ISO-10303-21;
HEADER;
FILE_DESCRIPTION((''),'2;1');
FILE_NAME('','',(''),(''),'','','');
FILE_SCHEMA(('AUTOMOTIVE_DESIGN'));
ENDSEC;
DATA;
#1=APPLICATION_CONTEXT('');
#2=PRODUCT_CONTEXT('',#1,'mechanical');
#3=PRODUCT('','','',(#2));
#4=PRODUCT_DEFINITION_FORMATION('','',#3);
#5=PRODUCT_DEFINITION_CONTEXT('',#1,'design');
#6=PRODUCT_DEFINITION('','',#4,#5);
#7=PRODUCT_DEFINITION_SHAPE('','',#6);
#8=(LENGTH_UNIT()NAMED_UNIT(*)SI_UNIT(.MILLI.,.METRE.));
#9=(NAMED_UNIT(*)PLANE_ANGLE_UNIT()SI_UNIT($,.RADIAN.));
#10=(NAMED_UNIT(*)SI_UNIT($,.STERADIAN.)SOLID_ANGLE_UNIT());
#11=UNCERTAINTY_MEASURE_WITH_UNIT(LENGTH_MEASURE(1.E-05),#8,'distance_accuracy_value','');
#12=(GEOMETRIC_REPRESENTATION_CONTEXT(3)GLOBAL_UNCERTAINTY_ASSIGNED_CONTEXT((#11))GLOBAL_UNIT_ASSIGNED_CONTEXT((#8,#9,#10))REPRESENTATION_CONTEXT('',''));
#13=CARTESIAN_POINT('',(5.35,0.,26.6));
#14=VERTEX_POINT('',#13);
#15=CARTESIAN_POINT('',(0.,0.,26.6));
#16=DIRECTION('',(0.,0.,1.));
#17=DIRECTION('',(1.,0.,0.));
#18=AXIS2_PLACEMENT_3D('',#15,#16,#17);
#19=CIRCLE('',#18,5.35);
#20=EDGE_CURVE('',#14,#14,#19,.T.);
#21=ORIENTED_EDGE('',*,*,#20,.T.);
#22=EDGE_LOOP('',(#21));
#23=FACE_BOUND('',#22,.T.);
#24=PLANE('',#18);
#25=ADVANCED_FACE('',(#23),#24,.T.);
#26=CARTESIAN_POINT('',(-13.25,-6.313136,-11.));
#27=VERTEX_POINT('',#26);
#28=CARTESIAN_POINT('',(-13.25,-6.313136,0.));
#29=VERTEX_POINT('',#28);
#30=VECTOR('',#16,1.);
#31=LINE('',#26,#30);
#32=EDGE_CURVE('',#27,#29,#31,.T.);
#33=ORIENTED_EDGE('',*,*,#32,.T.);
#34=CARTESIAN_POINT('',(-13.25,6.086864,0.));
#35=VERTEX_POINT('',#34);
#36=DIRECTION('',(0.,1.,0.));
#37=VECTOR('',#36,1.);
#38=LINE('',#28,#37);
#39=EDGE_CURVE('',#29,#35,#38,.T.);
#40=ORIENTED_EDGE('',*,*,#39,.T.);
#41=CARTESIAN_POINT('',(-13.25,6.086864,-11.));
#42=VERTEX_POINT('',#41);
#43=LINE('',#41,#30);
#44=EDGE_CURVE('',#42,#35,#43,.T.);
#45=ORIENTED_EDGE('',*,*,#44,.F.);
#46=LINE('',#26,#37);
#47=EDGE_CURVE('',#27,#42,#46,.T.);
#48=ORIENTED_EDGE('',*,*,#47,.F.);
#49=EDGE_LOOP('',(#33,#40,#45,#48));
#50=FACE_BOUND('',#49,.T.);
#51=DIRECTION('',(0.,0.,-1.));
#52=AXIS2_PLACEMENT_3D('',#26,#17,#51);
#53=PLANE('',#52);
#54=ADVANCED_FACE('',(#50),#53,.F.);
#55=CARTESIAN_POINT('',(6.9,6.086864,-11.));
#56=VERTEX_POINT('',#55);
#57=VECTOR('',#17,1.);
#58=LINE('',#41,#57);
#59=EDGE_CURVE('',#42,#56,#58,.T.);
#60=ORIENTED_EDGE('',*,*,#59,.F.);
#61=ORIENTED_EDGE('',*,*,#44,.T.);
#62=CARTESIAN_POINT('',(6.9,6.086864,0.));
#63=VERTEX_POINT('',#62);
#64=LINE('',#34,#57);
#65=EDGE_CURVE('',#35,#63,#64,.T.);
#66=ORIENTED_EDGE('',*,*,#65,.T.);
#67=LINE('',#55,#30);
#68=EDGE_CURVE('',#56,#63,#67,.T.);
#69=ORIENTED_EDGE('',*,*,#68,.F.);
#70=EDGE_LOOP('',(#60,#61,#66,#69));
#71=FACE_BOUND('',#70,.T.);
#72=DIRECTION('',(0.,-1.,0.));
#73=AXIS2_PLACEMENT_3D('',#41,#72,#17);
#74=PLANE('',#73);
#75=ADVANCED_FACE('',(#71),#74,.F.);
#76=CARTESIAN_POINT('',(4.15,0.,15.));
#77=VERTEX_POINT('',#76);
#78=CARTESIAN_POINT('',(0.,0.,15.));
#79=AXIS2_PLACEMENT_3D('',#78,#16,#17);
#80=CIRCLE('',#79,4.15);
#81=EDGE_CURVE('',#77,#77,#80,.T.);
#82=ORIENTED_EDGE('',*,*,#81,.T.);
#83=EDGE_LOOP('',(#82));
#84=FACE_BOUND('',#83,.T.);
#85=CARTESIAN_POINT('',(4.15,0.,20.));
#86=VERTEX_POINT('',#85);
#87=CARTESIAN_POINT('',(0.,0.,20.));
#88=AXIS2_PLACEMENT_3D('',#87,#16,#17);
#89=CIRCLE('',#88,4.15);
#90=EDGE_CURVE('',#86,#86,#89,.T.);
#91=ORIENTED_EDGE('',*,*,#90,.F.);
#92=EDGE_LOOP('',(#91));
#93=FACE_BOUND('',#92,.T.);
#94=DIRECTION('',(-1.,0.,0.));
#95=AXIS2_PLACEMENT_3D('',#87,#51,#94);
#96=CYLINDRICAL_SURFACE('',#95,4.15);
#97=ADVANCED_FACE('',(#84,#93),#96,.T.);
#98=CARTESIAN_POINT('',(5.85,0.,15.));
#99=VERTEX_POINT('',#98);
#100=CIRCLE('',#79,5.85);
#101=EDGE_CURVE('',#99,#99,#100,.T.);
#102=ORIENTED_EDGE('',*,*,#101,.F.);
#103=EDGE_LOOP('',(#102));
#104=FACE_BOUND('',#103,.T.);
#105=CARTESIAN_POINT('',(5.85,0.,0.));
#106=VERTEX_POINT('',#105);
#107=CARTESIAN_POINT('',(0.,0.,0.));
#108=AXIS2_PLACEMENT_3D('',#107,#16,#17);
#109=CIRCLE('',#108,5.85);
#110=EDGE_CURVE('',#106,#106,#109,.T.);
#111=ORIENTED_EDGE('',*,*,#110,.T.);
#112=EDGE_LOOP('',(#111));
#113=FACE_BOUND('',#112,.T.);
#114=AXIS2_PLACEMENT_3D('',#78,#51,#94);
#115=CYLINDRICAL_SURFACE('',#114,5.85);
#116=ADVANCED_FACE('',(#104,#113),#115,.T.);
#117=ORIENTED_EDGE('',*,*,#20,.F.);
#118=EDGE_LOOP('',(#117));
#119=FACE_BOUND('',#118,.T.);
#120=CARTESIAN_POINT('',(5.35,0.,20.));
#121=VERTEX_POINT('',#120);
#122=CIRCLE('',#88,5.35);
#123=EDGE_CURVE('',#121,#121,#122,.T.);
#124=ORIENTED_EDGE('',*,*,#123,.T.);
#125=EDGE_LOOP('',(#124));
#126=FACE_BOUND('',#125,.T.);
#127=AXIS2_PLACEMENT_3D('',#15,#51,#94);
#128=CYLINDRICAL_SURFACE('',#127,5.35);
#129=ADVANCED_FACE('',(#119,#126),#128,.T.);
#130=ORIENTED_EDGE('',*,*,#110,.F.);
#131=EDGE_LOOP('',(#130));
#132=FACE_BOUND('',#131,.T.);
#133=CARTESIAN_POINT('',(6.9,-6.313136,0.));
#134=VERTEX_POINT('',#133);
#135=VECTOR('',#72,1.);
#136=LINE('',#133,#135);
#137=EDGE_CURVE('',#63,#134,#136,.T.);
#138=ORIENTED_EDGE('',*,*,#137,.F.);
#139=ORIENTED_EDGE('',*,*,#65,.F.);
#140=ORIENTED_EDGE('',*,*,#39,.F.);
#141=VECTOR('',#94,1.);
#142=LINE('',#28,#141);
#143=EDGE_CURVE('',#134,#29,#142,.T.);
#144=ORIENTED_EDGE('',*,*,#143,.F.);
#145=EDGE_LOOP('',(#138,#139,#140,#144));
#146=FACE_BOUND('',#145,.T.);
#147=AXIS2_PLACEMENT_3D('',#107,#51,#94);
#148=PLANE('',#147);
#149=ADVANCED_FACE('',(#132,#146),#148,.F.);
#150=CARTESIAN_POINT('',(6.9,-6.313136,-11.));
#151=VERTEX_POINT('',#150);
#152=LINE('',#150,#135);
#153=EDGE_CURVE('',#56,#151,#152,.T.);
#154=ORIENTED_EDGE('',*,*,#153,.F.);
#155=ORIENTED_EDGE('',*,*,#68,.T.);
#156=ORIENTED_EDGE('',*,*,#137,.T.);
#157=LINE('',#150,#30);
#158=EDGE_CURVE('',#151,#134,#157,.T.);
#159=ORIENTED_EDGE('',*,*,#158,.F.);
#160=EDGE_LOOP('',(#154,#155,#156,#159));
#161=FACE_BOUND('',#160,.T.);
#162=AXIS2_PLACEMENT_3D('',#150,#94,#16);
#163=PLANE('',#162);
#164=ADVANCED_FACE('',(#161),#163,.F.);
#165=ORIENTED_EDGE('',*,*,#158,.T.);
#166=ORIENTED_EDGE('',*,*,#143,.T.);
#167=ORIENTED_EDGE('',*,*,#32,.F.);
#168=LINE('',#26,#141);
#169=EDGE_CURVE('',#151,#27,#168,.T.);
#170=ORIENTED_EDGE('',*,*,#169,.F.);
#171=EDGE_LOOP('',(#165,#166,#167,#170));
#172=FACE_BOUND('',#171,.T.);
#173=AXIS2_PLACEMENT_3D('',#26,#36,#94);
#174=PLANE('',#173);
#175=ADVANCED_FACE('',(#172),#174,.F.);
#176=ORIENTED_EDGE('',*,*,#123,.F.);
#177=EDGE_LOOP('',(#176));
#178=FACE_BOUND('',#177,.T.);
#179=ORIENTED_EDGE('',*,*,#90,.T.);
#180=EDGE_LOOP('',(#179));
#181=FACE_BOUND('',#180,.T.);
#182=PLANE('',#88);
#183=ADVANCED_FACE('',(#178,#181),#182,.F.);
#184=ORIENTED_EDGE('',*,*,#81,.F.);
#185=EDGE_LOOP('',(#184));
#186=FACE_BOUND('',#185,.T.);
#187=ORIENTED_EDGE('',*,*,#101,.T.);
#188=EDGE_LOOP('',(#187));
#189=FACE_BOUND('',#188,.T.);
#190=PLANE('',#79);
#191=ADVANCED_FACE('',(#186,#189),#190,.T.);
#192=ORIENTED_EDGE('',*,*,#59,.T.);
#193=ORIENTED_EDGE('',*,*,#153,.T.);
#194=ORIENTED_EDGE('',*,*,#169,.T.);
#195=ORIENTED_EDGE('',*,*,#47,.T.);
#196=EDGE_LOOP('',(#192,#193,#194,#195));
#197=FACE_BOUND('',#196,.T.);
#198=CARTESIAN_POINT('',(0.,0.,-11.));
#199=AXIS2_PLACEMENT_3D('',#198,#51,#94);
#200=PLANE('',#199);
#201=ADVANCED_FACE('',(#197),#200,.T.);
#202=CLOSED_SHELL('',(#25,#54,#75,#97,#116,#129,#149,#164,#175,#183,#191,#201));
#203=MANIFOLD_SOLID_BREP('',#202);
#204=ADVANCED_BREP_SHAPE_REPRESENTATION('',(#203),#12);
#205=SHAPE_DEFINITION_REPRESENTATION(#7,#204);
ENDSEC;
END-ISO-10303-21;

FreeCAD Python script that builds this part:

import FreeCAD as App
import Part
import Sketcher
from FreeCAD import Vector


def add_polygon(sketch, points):
    """Adds a closed chain of lines whose ends are joined by coincident constraints."""
    first, n = sketch.GeometryCount, len(points)
    for a, b in zip(points, points[1:] + points[:1]):
        sketch.addGeometry(Part.LineSegment(App.Vector(*a, 0), App.Vector(*b, 0)), False)
    for i in range(n):
        sketch.addConstraint(Sketcher.Constraint("Coincident", first + i, 2, first + (i + 1) % n, 1))

doc = App.newDocument("Part")
params = doc.addObject("Spreadsheet::Sheet", "Params")
for row, (alias, value) in enumerate([
    ("sketch1_diameter", "11.7 mm"),
    ("pad1_length", "15 mm"),
    ("sketch2_diameter", "8.3 mm"),
    ("pad2_length", "5 mm"),
    ("sketch3_diameter", "10.7 mm"),
    ("pad3_length", "6.6 mm"),
    ("sketch4_height", "12.4 mm"),
    ("sketch4_width", "20.15 mm"),
    ("pad4_length", "11 mm"),
], start=1):
    params.set(f"A{row}", alias)
    params.set(f"B{row}", "=" + value)
    params.setAlias(f"B{row}", alias)

body = doc.addObject("PartDesign::Body", "Body")

sketch1 = body.newObject("Sketcher::SketchObject", "Sketch")
sketch1.AttachmentSupport = (doc.getObject("XY_Plane"), [""])
sketch1.MapMode = "FlatFace"
sketch1.addGeometry(Part.Circle(Vector(0, 0, 0), Vector(0, 0, 1), 6), False)
sketch1.addConstraint([
    Sketcher.Constraint("Coincident", 0, 3, -1, 1),
    Sketcher.Constraint("Diameter", 0, 11.7),
])
sketch1.setExpression("Constraints[1]", "Params.sketch1_diameter")
pad1 = body.newObject("PartDesign::Pad", "Pad")
pad1.Profile = sketch1
pad1.setExpression("Length", "Params.pad1_length")

sketch2 = body.newObject("Sketcher::SketchObject", "Sketch001")
sketch2.AttachmentSupport = (doc.getObject("XY_Plane"), [""])
sketch2.MapMode = "FlatFace"
sketch2.AttachmentOffset = App.Placement(Vector(0, 0, 15), App.Rotation())
sketch2.addGeometry(Part.Circle(Vector(0, 0, 0), Vector(0, 0, 1), 4.2), False)
sketch2.addConstraint([
    Sketcher.Constraint("Coincident", 0, 3, -1, 1),
    Sketcher.Constraint("Diameter", 0, 8.3),
])
sketch2.setExpression("Constraints[1]", "Params.sketch2_diameter")
pad2 = body.newObject("PartDesign::Pad", "Pad001")
pad2.Profile = sketch2
pad2.setExpression("Length", "Params.pad2_length")

sketch3 = body.newObject("Sketcher::SketchObject", "Sketch002")
sketch3.AttachmentSupport = (doc.getObject("XY_Plane"), [""])
sketch3.MapMode = "FlatFace"
sketch3.AttachmentOffset = App.Placement(Vector(0, 0, 20), App.Rotation())
sketch3.addGeometry(Part.Circle(Vector(0, 0, 0), Vector(0, 0, 1), 5), False)
sketch3.addConstraint([
    Sketcher.Constraint("Coincident", 0, 3, -1, 1),
    Sketcher.Constraint("Diameter", 0, 10.7),
])
sketch3.setExpression("Constraints[1]", "Params.sketch3_diameter")
pad3 = body.newObject("PartDesign::Pad", "Pad002")
pad3.Profile = sketch3
pad3.setExpression("Length", "Params.pad3_length")

sketch4 = body.newObject("Sketcher::SketchObject", "Sketch003")
sketch4.AttachmentSupport = (doc.getObject("XY_Plane"), [""])
sketch4.MapMode = "FlatFace"
add_polygon(sketch4, [(7, 6), (7, -6), (-13, -6), (-13, 6)])
sketch4.addConstraint([
    Sketcher.Constraint("Vertical", 0),
    Sketcher.Constraint("Horizontal", 1),
    Sketcher.Constraint("Vertical", 2),
    Sketcher.Constraint("Horizontal", 3),
    Sketcher.Constraint("DistanceY", 0, 2, 0, 1, 12.4),
    Sketcher.Constraint("DistanceX", 1, 2, 1, 1, 20.15),
    Sketcher.Constraint("DistanceX", -1, 1, 0, 2, 6.9),
    Sketcher.Constraint("DistanceY", 0, 2, -1, 1, 6.313136),
])
sketch4.setExpression("Constraints[8]", "Params.sketch4_height")
sketch4.setExpression("Constraints[9]", "Params.sketch4_width")
pad4 = body.newObject("PartDesign::Pad", "Pad003")
pad4.Profile = sketch4
pad4.setExpression("Length", "Params.pad4_length")
pad4.Reversed = True

doc.recompute()
